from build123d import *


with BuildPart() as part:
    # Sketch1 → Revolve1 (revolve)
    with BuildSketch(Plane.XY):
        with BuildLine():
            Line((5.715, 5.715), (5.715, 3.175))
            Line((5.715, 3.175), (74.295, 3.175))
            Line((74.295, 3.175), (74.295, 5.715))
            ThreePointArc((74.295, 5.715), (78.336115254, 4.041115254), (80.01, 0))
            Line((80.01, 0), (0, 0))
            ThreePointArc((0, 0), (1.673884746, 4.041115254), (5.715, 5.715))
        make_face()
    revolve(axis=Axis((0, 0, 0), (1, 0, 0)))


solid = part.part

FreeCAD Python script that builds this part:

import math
import FreeCAD as App
import Part
import Sketcher
from FreeCAD import Vector
Q = App.Units.Quantity

doc = App.newDocument("Part")
body = doc.addObject("PartDesign::Body", "Body")

# Sketch on XY plane
sketch1 = body.newObject("Sketcher::SketchObject", "Sketch")
sketch1.AttachmentSupport = (doc.getObject("XY_Plane"), [""])
sketch1.MapMode = "FlatFace"
sketch1.addGeometry([
    Part.LineSegment(Vector(5.715, 3.175, 0), Vector(5.715, 5.715, 0)),  # 0
    Part.ArcOfCircle(Part.Circle(Vector(5.715, 0, 0), Vector(0, 0, 1), 5.715), math.radians(90), math.radians(180)),  # 1
    Part.LineSegment(Vector(0, 0, 0), Vector(80.01, 0, 0)),  # 2
    Part.ArcOfCircle(Part.Circle(Vector(74.295, 0, 0), Vector(0, 0, 1), 5.715), math.radians(0), math.radians(90)),  # 3
    Part.LineSegment(Vector(74.295, 5.715, 0), Vector(74.295, 3.175, 0)),  # 4
    Part.LineSegment(Vector(74.295, 3.175, 0), Vector(5.715, 3.175, 0)),  # 5
], False)
sketch1.addConstraint([
    Sketcher.Constraint("Coincident", 0, 2, 1, 1),
    Sketcher.Constraint("Coincident", 1, 2, 2, 1),
    Sketcher.Constraint("Coincident", 2, 2, 3, 1),
    Sketcher.Constraint("Coincident", 3, 2, 4, 1),
    Sketcher.Constraint("Coincident", 4, 2, 5, 1),
    Sketcher.Constraint("Coincident", 5, 2, 0, 1),
    Sketcher.Constraint("Vertical", 0),
    Sketcher.Constraint("Horizontal", 2),
    Sketcher.Constraint("Vertical", 4),
    Sketcher.Constraint("Horizontal", 5),
    Sketcher.Constraint("Coincident", 1, 2, -1, 1),
    Sketcher.Constraint("Equal", 1, 3),
    Sketcher.Constraint("PointOnObject", 1, 3, -1),
    Sketcher.Constraint("PointOnObject", 3, 3, -1),
    Sketcher.Constraint("Vertical", 1, 3, 0, 2),
    Sketcher.Constraint("DistanceX", 5, 2, 5, 1, Q("2.7 in")),
    Sketcher.Constraint("DistanceY", 0, 1, 0, 2, Q("0.1 in")),
    Sketcher.Constraint("Radius", 1, Q("0.225 in")),
    Sketcher.Constraint("DistanceX", 2, 1, 2, 2, Q("3.15 in")),
])
revolution = body.newObject("PartDesign::Revolution", "Revolution")
revolution.Profile = sketch1
revolution.ReferenceAxis = (sketch1, ["H_Axis"])
revolution.Angle = 360

doc.recompute()
